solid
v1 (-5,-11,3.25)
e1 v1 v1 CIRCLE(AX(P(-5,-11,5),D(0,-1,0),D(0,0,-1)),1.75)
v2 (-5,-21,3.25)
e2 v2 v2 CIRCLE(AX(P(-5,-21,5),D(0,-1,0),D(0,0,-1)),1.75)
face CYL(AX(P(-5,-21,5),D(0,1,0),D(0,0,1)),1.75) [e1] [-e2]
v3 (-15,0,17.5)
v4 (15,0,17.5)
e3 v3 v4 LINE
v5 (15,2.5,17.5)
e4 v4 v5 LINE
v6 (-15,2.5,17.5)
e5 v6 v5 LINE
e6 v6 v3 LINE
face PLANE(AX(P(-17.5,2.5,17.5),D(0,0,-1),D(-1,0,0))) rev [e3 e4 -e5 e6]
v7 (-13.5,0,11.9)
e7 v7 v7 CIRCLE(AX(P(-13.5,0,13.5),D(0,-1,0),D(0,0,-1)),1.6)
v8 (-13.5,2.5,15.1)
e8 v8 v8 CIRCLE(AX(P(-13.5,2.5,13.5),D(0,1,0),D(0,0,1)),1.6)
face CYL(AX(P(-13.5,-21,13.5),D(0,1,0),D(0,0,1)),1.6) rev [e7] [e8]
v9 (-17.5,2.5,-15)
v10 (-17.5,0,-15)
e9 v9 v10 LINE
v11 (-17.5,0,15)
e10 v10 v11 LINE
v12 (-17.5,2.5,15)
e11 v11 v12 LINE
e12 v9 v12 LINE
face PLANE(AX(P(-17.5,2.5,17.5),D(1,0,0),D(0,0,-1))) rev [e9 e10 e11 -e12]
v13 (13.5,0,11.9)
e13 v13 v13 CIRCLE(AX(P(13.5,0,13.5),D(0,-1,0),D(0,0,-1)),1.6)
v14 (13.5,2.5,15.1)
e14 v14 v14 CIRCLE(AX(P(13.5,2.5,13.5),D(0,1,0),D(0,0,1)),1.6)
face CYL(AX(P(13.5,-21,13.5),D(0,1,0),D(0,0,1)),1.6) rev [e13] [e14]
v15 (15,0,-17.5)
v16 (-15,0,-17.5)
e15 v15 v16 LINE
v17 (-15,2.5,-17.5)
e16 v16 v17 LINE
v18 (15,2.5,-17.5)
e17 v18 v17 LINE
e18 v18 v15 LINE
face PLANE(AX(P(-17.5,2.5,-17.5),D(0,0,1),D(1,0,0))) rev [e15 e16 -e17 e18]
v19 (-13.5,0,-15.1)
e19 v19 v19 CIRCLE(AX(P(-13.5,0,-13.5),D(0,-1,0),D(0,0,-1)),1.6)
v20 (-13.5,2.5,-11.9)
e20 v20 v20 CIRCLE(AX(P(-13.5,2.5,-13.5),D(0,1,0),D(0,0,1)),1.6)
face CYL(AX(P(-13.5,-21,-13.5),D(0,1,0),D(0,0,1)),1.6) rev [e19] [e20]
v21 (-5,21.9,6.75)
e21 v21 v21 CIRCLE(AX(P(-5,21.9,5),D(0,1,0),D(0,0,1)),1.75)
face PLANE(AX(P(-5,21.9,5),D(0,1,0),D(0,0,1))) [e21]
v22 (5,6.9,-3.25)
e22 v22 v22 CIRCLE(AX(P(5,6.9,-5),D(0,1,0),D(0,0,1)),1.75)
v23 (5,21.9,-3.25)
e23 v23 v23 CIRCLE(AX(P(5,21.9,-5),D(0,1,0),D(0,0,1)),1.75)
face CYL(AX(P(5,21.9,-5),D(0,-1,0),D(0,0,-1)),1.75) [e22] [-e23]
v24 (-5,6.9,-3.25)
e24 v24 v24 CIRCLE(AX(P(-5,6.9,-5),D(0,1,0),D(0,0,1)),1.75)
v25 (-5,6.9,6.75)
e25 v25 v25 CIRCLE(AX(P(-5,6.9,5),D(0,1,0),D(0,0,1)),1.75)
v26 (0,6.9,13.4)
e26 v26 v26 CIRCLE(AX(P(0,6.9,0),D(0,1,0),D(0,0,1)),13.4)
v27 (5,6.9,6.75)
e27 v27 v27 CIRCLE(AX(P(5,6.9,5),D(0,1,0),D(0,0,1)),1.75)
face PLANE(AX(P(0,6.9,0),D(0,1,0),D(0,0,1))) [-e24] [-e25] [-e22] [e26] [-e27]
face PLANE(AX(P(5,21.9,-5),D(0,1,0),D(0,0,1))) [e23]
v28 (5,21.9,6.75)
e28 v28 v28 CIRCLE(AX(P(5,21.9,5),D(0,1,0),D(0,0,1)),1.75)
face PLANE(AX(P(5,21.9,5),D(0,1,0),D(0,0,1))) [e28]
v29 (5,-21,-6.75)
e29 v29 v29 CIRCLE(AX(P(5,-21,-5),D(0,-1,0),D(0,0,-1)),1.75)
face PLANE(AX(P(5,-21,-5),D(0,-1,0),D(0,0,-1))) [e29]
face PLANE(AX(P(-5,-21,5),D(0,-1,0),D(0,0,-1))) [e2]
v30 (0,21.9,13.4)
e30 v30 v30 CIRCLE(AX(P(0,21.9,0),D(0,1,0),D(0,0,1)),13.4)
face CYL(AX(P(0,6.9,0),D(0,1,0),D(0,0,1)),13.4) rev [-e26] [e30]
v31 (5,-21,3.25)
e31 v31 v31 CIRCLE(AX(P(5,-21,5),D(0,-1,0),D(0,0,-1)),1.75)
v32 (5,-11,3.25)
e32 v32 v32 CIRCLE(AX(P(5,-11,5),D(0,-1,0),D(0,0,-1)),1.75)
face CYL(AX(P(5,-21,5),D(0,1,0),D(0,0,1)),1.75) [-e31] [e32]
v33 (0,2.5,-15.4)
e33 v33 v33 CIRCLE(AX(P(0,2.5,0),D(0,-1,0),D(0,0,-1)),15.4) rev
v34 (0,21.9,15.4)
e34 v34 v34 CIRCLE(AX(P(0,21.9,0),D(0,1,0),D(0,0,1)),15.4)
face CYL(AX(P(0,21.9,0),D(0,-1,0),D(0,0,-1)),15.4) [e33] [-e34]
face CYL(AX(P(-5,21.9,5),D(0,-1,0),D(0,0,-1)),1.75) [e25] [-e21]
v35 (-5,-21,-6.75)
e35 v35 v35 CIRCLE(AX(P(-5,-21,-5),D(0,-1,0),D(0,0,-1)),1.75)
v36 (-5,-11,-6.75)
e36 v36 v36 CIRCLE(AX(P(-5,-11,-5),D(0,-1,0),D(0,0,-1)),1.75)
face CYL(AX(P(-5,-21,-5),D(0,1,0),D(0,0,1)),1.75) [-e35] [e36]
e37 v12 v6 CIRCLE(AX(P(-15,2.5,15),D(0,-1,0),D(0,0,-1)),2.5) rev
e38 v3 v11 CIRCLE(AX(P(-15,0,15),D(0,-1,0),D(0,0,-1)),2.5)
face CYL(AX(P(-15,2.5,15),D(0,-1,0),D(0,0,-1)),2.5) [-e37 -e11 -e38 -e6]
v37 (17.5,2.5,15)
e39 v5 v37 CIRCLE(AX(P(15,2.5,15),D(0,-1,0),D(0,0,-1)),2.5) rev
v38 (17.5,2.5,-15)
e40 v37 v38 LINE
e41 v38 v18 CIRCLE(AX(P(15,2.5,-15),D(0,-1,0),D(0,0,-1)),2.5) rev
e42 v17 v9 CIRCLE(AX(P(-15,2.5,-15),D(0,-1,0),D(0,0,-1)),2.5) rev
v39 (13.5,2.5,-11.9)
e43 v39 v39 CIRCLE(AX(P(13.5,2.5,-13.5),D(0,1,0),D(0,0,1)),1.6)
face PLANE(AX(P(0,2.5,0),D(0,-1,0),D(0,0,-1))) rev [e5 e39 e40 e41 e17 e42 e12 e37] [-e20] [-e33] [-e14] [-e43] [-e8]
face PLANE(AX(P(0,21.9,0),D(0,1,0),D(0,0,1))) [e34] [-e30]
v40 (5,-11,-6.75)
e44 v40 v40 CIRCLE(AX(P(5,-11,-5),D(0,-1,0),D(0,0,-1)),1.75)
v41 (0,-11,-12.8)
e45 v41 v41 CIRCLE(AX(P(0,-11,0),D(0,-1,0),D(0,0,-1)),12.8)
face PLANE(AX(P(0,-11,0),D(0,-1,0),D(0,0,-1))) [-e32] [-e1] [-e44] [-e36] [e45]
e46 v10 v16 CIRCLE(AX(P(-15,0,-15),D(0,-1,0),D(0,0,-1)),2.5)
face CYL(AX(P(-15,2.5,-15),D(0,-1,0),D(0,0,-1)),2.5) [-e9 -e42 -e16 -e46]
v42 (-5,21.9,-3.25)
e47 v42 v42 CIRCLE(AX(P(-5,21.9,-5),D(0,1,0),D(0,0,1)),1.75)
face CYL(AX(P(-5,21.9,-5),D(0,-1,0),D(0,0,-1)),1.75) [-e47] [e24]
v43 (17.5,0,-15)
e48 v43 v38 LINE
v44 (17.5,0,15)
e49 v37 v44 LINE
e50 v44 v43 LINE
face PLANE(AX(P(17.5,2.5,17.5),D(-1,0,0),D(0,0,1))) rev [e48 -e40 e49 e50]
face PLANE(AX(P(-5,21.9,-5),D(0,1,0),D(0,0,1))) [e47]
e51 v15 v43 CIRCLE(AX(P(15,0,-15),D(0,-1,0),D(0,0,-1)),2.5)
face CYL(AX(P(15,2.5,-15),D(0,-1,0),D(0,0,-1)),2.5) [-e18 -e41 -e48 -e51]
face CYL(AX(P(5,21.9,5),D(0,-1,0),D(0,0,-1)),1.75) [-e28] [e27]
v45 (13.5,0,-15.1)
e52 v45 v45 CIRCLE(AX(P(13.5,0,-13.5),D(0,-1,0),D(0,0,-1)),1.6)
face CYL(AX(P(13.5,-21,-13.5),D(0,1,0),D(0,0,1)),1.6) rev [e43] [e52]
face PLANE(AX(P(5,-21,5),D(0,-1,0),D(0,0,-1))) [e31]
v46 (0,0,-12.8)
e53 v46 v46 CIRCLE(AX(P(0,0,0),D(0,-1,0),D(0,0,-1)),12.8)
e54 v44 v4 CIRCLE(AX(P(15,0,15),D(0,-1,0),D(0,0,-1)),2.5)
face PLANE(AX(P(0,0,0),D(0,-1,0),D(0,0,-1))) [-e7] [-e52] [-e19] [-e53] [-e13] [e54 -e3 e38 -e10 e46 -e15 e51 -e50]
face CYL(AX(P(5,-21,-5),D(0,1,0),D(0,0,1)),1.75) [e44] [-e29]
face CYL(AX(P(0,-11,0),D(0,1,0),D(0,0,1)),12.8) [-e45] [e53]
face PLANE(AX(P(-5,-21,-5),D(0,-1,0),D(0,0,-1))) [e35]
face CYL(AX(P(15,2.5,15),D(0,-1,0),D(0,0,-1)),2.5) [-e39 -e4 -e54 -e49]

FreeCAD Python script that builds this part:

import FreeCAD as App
import Part
import Sketcher

V = App.Vector
Q = App.Units.Quantity


def edges_at(feature, points):
    """Names of the edges that pass closest to the given points."""
    edges = feature.Shape.Edges
    near = lambda p: min(range(len(edges)), key=lambda i: edges[i].distToShape(Part.Vertex(*p))[0])
    return sorted({f"Edge{near(p) + 1}" for p in points})


def add_polygon(sketch, points):
    """Adds a closed chain of lines whose ends are joined by coincident constraints."""
    first, n = sketch.GeometryCount, len(points)
    for a, b in zip(points, points[1:] + points[:1]):
        sketch.addGeometry(Part.LineSegment(App.Vector(*a, 0), App.Vector(*b, 0)), False)
    for i in range(n):
        sketch.addConstraint(Sketcher.Constraint("Coincident", first + i, 2, first + (i + 1) % n, 1))

doc = App.newDocument("Part")
body = doc.addObject("PartDesign::Body", "Body")

# Sketch on XZ plane
sketch1 = doc.addObject("Sketcher::SketchObject", "Sketch")
body.addObject(sketch1)
sketch1.AttachmentSupport = (doc.XZ_Plane, [""])
sketch1.MapMode = "FlatFace"
add_polygon(sketch1, [(-18, -18), (-18, 18), (18, 18), (18, -18)])  # lines 0-3
sketch1.addConstraint(Sketcher.Constraint("Vertical", 0))
sketch1.addConstraint(Sketcher.Constraint("Horizontal", 1))
sketch1.addConstraint(Sketcher.Constraint("Vertical", 2))
sketch1.addConstraint(Sketcher.Constraint("Horizontal", 3))
sketch1.addConstraint(Sketcher.Constraint("Symmetric", 0, 2, 2, 2, -1, 1))
sketch1.addConstraint(Sketcher.Constraint("Equal", 3, 0))
sketch1.addConstraint(Sketcher.Constraint("DistanceX", 1, 1, 1, 2, Q("35 mm")))
pad1 = doc.addObject("PartDesign::Pad", "Pad")
body.addObject(pad1)
pad1.Profile = sketch1
pad1.Length = 2.5
pad1.Reversed = True
doc.recompute()

fillet = doc.addObject("PartDesign::Fillet", "Fillet")
body.addObject(fillet)
fillet.Base = (pad1, edges_at(pad1, [
    (17.5, 1.25, 17.5),
    (-17.5, 1.25, 17.5),
    (-17.5, 1.25, -17.5),
    (17.5, 1.25, -17.5),
]))
fillet.Radius = 2.5

# Sketch on XZ plane
sketch2 = doc.addObject("Sketcher::SketchObject", "Sketch001")
body.addObject(sketch2)
sketch2.AttachmentSupport = (doc.XZ_Plane, [""])
sketch2.MapMode = "FlatFace"
sketch2.AttachmentOffset = App.Placement(V(0, 0, -2.5), App.Rotation())
sketch2.addGeometry(Part.Circle(V(0, 0, 0), V(0, 0, 1), 15), False)
sketch2.addConstraint(Sketcher.Constraint("Coincident", 0, 3, -1, 1))
sketch2.addConstraint(Sketcher.Constraint("Diameter", 0, Q("30.8 mm")))
pad2 = doc.addObject("PartDesign::Pad", "Pad001")
body.addObject(pad2)
pad2.Profile = sketch2
pad2.Length = 19.4
pad2.Reversed = True

# Sketch on XZ plane
sketch3 = doc.addObject("Sketcher::SketchObject", "Sketch002")
body.addObject(sketch3)
sketch3.AttachmentSupport = (doc.XZ_Plane, [""])
sketch3.MapMode = "FlatFace"
sketch3.addGeometry(Part.Circle(V(0, 0, 0), V(0, 0, 1), 13), False)
sketch3.addConstraint(Sketcher.Constraint("Coincident", 0, 3, -1, 1))
sketch3.addConstraint(Sketcher.Constraint("Diameter", 0, Q("25.6 mm")))
pad3 = doc.addObject("PartDesign::Pad", "Pad002")
body.addObject(pad3)
pad3.Profile = sketch3
pad3.Length = 11

# Sketch on XZ plane
sketch4 = doc.addObject("Sketcher::SketchObject", "Sketch003")
body.addObject(sketch4)
sketch4.AttachmentSupport = (doc.XZ_Plane, [""])
sketch4.MapMode = "FlatFace"
sketch4.AttachmentOffset = App.Placement(V(0, 0, -21.9), App.Rotation())
sketch4.addGeometry(Part.Circle(V(0, 0, 0), V(0, 0, 1), 13), False)
sketch4.addConstraint(Sketcher.Constraint("Coincident", 0, 3, -1, 1))
sketch4.addConstraint(Sketcher.Constraint("Diameter", 0, Q("26.8 mm")))
pocket1 = doc.addObject("PartDesign::Pocket", "Pocket")
body.addObject(pocket1)
pocket1.Profile = sketch4
pocket1.Length = 15
pocket1.Reversed = True

# Sketch on XZ plane
sketch5 = doc.addObject("Sketcher::SketchObject", "Sketch004")
body.addObject(sketch5)
sketch5.AttachmentSupport = (doc.XZ_Plane, [""])
sketch5.MapMode = "FlatFace"
sketch5.AttachmentOffset = App.Placement(V(0, 0, -6.9), App.Rotation())
sketch5.addGeometry(Part.Circle(V(-5, -5, 0), V(0, 0, 1), 1.8), False)
sketch5.addGeometry(Part.Circle(V(-5, 5, 0), V(0, 0, 1), 1.8), False)
sketch5.addGeometry(Part.Circle(V(5, 5, 0), V(0, 0, 1), 1.8), False)
sketch5.addGeometry(Part.Circle(V(5, -5, 0), V(0, 0, 1), 1.8), False)
sketch5.addConstraint(Sketcher.Constraint("Equal", 0, 1))
sketch5.addConstraint(Sketcher.Constraint("Equal", 1, 2))
sketch5.addConstraint(Sketcher.Constraint("Equal", 2, 3))
sketch5.addConstraint(Sketcher.Constraint("Symmetric", 0, 3, 2, 3, -1, 1))
sketch5.addConstraint(Sketcher.Constraint("Symmetric", 1, 3, 3, 3, -1, 1))
sketch5.addConstraint(Sketcher.Constraint("Symmetric", 1, 3, 2, 3, -2))
sketch5.addConstraint(Sketcher.Constraint("Diameter", 0, Q("3.5 mm")))
sketch5.addConstraint(Sketcher.Constraint("DistanceX", 0, 3, -1, 1, Q("5 mm")))
sketch5.addConstraint(Sketcher.Constraint("DistanceY", 0, 3, -1, 1, Q("5 mm")))
pad4 = doc.addObject("PartDesign::Pad", "Pad003")
body.addObject(pad4)
pad4.Profile = sketch5
pad4.Length = 15
pad4.Reversed = True

# Sketch on XZ plane
sketch6 = doc.addObject("Sketcher::SketchObject", "Sketch005")
body.addObject(sketch6)
sketch6.AttachmentSupport = (doc.XZ_Plane, [""])
sketch6.MapMode = "FlatFace"
sketch6.AttachmentOffset = App.Placement(V(0, 0, 21), App.Rotation())
sketch6.addGeometry(Part.Circle(V(5, -5, 0), V(0, 0, 1), 1.8), False)
sketch6.addGeometry(Part.Circle(V(5, 5, 0), V(0, 0, 1), 1.8), False)
sketch6.addGeometry(Part.Circle(V(-5, 5, 0), V(0, 0, 1), 1.8), False)
sketch6.addGeometry(Part.Circle(V(-5, -5, 0), V(0, 0, 1), 1.8), False)
sketch6.addConstraint(Sketcher.Constraint("Equal", 0, 1))
sketch6.addConstraint(Sketcher.Constraint("Equal", 1, 2))
sketch6.addConstraint(Sketcher.Constraint("Equal", 2, 3))
sketch6.addConstraint(Sketcher.Constraint("Symmetric", 0, 3, 2, 3, -1, 1))
sketch6.addConstraint(Sketcher.Constraint("Symmetric", 1, 3, 3, 3, -1, 1))
sketch6.addConstraint(Sketcher.Constraint("Symmetric", 1, 3, 2, 3, -2))
sketch6.addConstraint(Sketcher.Constraint("Diameter", 0, Q("3.5 mm")))
sketch6.addConstraint(Sketcher.Constraint("DistanceX", -1, 1, 0, 3, Q("5 mm")))
sketch6.addConstraint(Sketcher.Constraint("DistanceY", 0, 3, -1, 1, Q("5 mm")))
pad5 = doc.addObject("PartDesign::Pad", "Pad004")
body.addObject(pad5)
pad5.Profile = sketch6
pad5.Length = 10
pad5.Reversed = True

# Sketch on XZ plane
sketch7 = doc.addObject("Sketcher::SketchObject", "Sketch006")
body.addObject(sketch7)
sketch7.AttachmentSupport = (doc.XZ_Plane, [""])
sketch7.MapMode = "FlatFace"
sketch7.AttachmentOffset = App.Placement(V(0, 0, -2.5), App.Rotation())
sketch7.addGeometry(Part.Circle(V(-13.5, -13.5, 0), V(0, 0, 1), 1.6), False)
sketch7.addGeometry(Part.Circle(V(-13.5, 13.5, 0), V(0, 0, 1), 1.6), False)
sketch7.addGeometry(Part.Circle(V(13.5, 13.5, 0), V(0, 0, 1), 1.6), False)
sketch7.addGeometry(Part.Circle(V(13.5, -13.5, 0), V(0, 0, 1), 1.6), False)
sketch7.addConstraint(Sketcher.Constraint("Equal", 0, 1))
sketch7.addConstraint(Sketcher.Constraint("Equal", 1, 2))
sketch7.addConstraint(Sketcher.Constraint("Equal", 2, 3))
sketch7.addConstraint(Sketcher.Constraint("Symmetric", 0, 3, 2, 3, -1, 1))
sketch7.addConstraint(Sketcher.Constraint("Symmetric", 1, 3, 3, 3, -1, 1))
sketch7.addConstraint(Sketcher.Constraint("Symmetric", 1, 3, 2, 3, -2))
sketch7.addConstraint(Sketcher.Constraint("Diameter", 0, Q("3.2 mm")))
sketch7.addConstraint(Sketcher.Constraint("DistanceY", 0, 3, 1, 3, Q("27 mm")))
sketch7.addConstraint(Sketcher.Constraint("DistanceX", 1, 3, 2, 3, Q("27 mm")))
pocket2 = doc.addObject("PartDesign::Pocket", "Pocket001")
body.addObject(pocket2)
pocket2.Profile = sketch7
pocket2.Type = "ThroughAll"
pocket2.Reversed = True

doc.recompute()
